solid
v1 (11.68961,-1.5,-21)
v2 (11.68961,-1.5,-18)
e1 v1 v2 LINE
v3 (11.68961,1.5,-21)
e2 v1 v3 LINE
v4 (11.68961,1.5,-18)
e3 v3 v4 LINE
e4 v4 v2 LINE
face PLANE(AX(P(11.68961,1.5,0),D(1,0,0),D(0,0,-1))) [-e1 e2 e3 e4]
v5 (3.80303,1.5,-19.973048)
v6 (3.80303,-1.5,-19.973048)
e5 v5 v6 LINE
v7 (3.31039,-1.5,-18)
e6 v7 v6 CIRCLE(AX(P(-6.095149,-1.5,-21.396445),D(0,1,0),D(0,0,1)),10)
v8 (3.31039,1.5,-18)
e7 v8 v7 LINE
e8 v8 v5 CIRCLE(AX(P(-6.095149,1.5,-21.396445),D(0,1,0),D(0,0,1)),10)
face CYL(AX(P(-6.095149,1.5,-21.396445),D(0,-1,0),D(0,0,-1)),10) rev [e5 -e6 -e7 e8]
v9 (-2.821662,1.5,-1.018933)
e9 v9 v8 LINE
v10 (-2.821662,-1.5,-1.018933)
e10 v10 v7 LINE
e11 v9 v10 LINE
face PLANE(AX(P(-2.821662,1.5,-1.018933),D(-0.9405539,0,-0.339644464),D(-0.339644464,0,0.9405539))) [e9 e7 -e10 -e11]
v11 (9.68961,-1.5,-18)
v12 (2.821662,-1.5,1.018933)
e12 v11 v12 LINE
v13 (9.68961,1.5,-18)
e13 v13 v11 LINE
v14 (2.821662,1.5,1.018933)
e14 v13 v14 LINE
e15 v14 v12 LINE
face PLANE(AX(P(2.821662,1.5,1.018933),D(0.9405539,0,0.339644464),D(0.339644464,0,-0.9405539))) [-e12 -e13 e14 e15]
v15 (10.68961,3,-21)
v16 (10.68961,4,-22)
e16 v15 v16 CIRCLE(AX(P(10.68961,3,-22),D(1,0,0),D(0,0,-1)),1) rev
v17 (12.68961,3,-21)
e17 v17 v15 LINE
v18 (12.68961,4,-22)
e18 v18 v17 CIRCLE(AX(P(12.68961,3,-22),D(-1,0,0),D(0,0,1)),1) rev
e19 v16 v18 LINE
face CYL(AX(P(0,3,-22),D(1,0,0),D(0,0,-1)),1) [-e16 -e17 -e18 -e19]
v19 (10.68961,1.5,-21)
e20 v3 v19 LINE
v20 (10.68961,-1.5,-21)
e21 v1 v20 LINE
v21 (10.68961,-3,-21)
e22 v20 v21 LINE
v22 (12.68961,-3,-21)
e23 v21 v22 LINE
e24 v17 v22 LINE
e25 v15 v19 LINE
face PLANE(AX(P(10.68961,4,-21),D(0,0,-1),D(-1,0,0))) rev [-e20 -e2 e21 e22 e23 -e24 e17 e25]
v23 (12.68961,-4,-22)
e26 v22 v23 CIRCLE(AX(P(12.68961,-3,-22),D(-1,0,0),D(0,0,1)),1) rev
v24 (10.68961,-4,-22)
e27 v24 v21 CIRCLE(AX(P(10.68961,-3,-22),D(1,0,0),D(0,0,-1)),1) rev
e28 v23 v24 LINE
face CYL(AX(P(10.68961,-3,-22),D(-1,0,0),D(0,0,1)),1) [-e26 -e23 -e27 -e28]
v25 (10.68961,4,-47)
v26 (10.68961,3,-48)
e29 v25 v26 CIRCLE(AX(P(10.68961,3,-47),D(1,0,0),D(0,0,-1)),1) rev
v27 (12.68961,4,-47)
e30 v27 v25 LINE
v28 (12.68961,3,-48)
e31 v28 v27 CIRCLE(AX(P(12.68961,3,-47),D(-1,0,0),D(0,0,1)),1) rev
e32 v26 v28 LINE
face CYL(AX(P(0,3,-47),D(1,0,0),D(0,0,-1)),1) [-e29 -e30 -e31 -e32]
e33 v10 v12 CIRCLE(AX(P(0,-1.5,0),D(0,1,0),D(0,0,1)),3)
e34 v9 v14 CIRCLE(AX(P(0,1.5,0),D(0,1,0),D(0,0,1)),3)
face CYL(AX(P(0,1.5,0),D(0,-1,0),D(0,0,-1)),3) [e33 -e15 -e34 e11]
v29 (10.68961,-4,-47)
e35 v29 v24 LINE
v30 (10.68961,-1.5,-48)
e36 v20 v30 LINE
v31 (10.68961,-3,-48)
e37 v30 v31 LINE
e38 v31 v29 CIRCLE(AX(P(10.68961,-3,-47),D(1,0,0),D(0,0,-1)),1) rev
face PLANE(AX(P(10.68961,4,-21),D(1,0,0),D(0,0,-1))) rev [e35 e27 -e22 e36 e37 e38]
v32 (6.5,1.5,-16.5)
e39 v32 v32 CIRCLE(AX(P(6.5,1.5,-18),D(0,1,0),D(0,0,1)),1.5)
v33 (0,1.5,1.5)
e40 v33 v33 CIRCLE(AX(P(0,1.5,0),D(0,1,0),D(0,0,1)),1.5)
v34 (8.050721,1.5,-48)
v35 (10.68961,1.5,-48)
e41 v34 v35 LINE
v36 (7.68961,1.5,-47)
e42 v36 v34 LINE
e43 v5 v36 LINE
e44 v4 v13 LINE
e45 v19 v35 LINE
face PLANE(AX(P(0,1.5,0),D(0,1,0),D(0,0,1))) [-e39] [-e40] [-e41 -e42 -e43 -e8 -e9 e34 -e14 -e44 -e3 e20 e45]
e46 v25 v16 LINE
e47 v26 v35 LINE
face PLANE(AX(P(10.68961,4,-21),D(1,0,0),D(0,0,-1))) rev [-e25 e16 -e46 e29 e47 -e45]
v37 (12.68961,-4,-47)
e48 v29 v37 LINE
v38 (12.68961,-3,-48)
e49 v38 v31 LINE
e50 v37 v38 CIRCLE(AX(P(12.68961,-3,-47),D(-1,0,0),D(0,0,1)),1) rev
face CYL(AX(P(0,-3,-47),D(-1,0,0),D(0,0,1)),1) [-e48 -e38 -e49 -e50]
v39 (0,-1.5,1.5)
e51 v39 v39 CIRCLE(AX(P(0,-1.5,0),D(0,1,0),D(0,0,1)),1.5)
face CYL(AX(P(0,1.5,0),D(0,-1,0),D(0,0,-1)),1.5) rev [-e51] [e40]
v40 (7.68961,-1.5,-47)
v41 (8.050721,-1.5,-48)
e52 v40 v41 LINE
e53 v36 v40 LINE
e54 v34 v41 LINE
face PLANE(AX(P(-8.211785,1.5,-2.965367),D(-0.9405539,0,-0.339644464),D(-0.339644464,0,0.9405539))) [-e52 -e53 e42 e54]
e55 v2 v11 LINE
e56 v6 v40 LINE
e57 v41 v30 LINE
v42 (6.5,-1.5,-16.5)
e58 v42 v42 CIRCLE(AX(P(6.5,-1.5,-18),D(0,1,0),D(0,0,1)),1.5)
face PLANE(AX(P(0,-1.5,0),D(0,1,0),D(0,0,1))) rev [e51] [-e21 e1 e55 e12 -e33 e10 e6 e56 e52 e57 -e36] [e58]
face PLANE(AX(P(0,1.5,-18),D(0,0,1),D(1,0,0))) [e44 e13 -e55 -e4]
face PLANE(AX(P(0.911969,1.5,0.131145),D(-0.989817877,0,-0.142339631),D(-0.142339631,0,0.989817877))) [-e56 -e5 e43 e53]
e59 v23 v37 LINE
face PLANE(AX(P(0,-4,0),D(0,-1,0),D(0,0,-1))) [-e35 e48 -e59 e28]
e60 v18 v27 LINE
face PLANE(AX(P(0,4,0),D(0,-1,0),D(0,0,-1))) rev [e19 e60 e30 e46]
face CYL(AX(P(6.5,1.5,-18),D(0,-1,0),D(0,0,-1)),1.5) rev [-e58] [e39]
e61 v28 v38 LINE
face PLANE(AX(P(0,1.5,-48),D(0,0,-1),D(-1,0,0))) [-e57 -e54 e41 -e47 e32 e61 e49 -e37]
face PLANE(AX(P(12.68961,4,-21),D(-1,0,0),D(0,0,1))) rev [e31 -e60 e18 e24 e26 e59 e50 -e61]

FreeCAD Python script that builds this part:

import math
import FreeCAD as App
import Part
import Sketcher


def edges_at(feature, points):
    """Names of the edges that pass closest to the given points."""
    edges = feature.Shape.Edges
    near = lambda p: min(range(len(edges)), key=lambda i: edges[i].distToShape(Part.Vertex(*p))[0])
    return sorted({f"Edge{near(p) + 1}" for p in points})


def add_polygon(sketch, points):
    """Adds a closed chain of lines whose ends are joined by coincident constraints."""
    first, n = sketch.GeometryCount, len(points)
    for a, b in zip(points, points[1:] + points[:1]):
        sketch.addGeometry(Part.LineSegment(App.Vector(*a, 0), App.Vector(*b, 0)), False)
    for i in range(n):
        sketch.addConstraint(Sketcher.Constraint("Coincident", first + i, 2, first + (i + 1) % n, 1))

doc = App.newDocument("Part")
body = doc.addObject("PartDesign::Body", "Body")

# Sketch on XZ plane
sketch1 = body.newObject("Sketcher::SketchObject", "Sketch")
sketch1.AttachmentSupport = (doc.getObject("XZ_Plane"), [""])
sketch1.MapMode = "FlatFace"
sketch1.addGeometry([
    Part.LineSegment(App.Vector(3.3, -18, 0), App.Vector(-2.8, -1, 0)),  # 0
    Part.ArcOfCircle(Part.Circle(App.Vector(0, 0, 0), App.Vector(0, 0, 1), 3), math.radians(20), math.radians(200)),  # 1
    Part.LineSegment(App.Vector(2.8, 1, 0), App.Vector(9.7, -18, 0)),  # 2
    Part.LineSegment(App.Vector(9.7, -18, 0), App.Vector(11.7, -18, 0)),  # 3
    Part.LineSegment(App.Vector(11.7, -18, 0), App.Vector(11.7, -48, 0)),  # 4
    Part.LineSegment(App.Vector(11.7, -48, 0), App.Vector(8.1, -48, 0)),  # 5
    Part.LineSegment(App.Vector(8.1, -48, 0), App.Vector(7.7, -47, 0)),  # 6
    Part.LineSegment(App.Vector(7.7, -47, 0), App.Vector(3.8, -20, 0)),  # 7
    Part.ArcOfCircle(Part.Circle(App.Vector(-6.1, -21.4, 0), App.Vector(0, 0, 1), 10), math.radians(8.18), math.radians(19.86)),  # 8
    Part.Circle(App.Vector(0, 0, 0), App.Vector(0, 0, 1), 1.5),  # 9
    Part.Circle(App.Vector(6.5, -18, 0), App.Vector(0, 0, 1), 1.5),  # 10
], False)
sketch1.addConstraint([
    Sketcher.Constraint("Tangent", 0, 2, 1, 2),
    Sketcher.Constraint("Tangent", 1, 1, 2, 1),
    Sketcher.Constraint("Coincident", 2, 2, 3, 1),
    Sketcher.Constraint("Coincident", 3, 2, 4, 1),
    Sketcher.Constraint("Coincident", 4, 2, 5, 1),
    Sketcher.Constraint("Coincident", 5, 2, 6, 1),
    Sketcher.Constraint("Coincident", 6, 2, 7, 1),
    Sketcher.Constraint("Tangent", 7, 2, 8, 1),
    Sketcher.Constraint("Tangent", 8, 2, 0, 1),
    Sketcher.Constraint("Horizontal", 3),
    Sketcher.Constraint("Vertical", 4),
    Sketcher.Constraint("Horizontal", 5),
    Sketcher.Constraint("Coincident", 1, 3, -1, 1),
    Sketcher.Constraint("Coincident", 9, 3, -1, 1),
    Sketcher.Constraint("Equal", 9, 10),
    Sketcher.Constraint("Parallel", 0, 2),
    Sketcher.Constraint("Parallel", 2, 6),
    Sketcher.Constraint("Horizontal", 10, 3, 2, 2),
    Sketcher.Constraint("Horizontal", 3, 2, 8, 2),
    Sketcher.Constraint("Diameter", 9, 3.0),
    Sketcher.Constraint("Radius", 1, 3.0),
    Sketcher.Constraint("Radius", 8, 10.0),
    Sketcher.Constraint("DistanceX", 3, 1, 3, 2, 2.0),
    Sketcher.Constraint("DistanceY", 4, 2, 4, 1, 30.0),
    Sketcher.Constraint("DistanceY", 10, 3, -1, 1, 18.0),
    Sketcher.Constraint("DistanceY", 6, 2, -1, 1, 47.0),
    Sketcher.Constraint("DistanceX", 6, 2, 4, 2, 4.0),
    Sketcher.Constraint("DistanceX", -1, 1, 10, 3, 6.5),
    Sketcher.Constraint("DistanceX", 5, 2, 5, 1, 3.638889),
])
pad1 = body.newObject("PartDesign::Pad", "Pad")
pad1.Profile = sketch1
pad1.Length = 3
pad1.Midplane = True

# Sketch on XZ plane
sketch2 = body.newObject("Sketcher::SketchObject", "Sketch001")
sketch2.AttachmentSupport = (doc.getObject("XZ_Plane"), [""])
sketch2.MapMode = "FlatFace"
add_polygon(sketch2, [(10.7, -48), (10.7, -21), (12.7, -21), (12.7, -48)])  # lines 0-3
sketch2.addConstraint([
    Sketcher.Constraint("Vertical", 0),
    Sketcher.Constraint("Horizontal", 1),
    Sketcher.Constraint("Vertical", 2),
    Sketcher.Constraint("Horizontal", 3),
    Sketcher.Constraint("DistanceX", 1, 1, 1, 2, 2.0),
    Sketcher.Constraint("DistanceY", 0, 1, 0, 2, 27.0),
    Sketcher.Constraint("DistanceY", 0, 2, -1, 1, 21.0),
    Sketcher.Constraint("DistanceX", -1, 1, 0, 2, 10.68961),
])
pad2 = body.newObject("PartDesign::Pad", "Pad001")
pad2.Profile = sketch2
pad2.Length = 8
pad2.Midplane = True
doc.recompute()

fillet = body.newObject("PartDesign::Fillet", "Fillet")
fillet.Base = (pad2, edges_at(pad2, [
    (11.69, -4, -48),
    (11.69, -4, -21),
    (11.69, 4, -48),
    (11.69, 4, -21),
]))
fillet.Radius = 1

doc.recompute()
